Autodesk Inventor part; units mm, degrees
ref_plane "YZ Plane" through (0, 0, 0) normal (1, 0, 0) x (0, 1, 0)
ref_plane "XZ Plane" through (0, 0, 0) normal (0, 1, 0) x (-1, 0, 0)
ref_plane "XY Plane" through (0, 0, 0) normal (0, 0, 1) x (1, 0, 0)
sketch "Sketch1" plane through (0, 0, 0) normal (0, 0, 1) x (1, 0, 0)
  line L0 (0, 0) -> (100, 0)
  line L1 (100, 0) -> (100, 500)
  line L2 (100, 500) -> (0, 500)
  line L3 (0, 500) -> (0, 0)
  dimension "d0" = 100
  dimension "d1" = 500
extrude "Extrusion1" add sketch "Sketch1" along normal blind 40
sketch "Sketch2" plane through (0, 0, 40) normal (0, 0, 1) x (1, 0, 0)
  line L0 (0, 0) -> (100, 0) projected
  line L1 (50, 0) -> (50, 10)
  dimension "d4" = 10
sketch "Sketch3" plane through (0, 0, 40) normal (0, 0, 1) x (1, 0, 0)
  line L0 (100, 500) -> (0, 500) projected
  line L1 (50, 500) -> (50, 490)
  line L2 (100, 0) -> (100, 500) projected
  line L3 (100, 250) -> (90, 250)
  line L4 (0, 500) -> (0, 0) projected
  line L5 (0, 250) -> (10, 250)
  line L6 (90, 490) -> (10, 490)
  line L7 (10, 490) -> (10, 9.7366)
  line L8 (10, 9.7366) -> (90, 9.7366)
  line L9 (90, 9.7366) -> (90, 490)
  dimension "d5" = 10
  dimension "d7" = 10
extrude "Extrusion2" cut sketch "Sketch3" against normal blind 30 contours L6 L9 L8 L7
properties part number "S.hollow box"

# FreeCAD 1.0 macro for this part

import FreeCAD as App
import Part
import Sketcher
Q = App.Units.Quantity

doc = App.newDocument("Part")
body = doc.addObject("PartDesign::Body", "Body")

# Sketch on XY plane
sketch1 = body.newObject("Sketcher::SketchObject", "Sketch")
sketch1.AttachmentSupport = (doc.getObject("XY_Plane"), [""])
sketch1.MapMode = "FlatFace"
sketch1.addGeometry([
    Part.LineSegment(App.Vector(0, 500, 0), App.Vector(0, 0, 0)),
    Part.LineSegment(App.Vector(0, 0, 0), App.Vector(100, 0, 0)),
    Part.LineSegment(App.Vector(100, 0, 0), App.Vector(100, 500, 0)),
    Part.LineSegment(App.Vector(100, 500, 0), App.Vector(0, 500, 0)),
], False)
sketch1.addConstraint([
    Sketcher.Constraint("Coincident", 0, 2, 1, 1),
    Sketcher.Constraint("Coincident", 1, 2, 2, 1),
    Sketcher.Constraint("Coincident", 2, 2, 3, 1),
    Sketcher.Constraint("Coincident", 3, 2, 0, 1),
    Sketcher.Constraint("Vertical", 0),
    Sketcher.Constraint("Horizontal", 1),
    Sketcher.Constraint("Vertical", 2),
    Sketcher.Constraint("Horizontal", 3),
    Sketcher.Constraint("Coincident", 0, 2, -1, 1),
    Sketcher.Constraint("DistanceX", 1, 1, 1, 2, Q("3.937 in")),
    Sketcher.Constraint("DistanceY", 0, 2, 0, 1, Q("500 mm")),
])
pad1 = body.newObject("PartDesign::Pad", "Pad")
pad1.Profile = sketch1
pad1.Length = Q("1.5748031 in")

# Sketch on XY plane
sketch2 = body.newObject("Sketcher::SketchObject", "Sketch001")
sketch2.AttachmentSupport = (doc.getObject("XY_Plane"), [""])
sketch2.MapMode = "FlatFace"
sketch2.AttachmentOffset = App.Placement(App.Vector(0, 0, 1.5748031 * 25.4), App.Rotation())
sketch2.addGeometry([
    Part.LineSegment(App.Vector(90, 490, 0), App.Vector(10, 490, 0)),
    Part.LineSegment(App.Vector(10, 490, 0), App.Vector(10, 10, 0)),
    Part.LineSegment(App.Vector(10, 10, 0), App.Vector(90, 10, 0)),
    Part.LineSegment(App.Vector(90, 10, 0), App.Vector(90, 490, 0)),
], False)
sketch2.addConstraint([
    Sketcher.Constraint("Coincident", 0, 2, 1, 1),
    Sketcher.Constraint("Coincident", 1, 2, 2, 1),
    Sketcher.Constraint("Coincident", 2, 2, 3, 1),
    Sketcher.Constraint("Coincident", 3, 2, 0, 1),
    Sketcher.Constraint("Horizontal", 0),
    Sketcher.Constraint("Vertical", 1),
    Sketcher.Constraint("Horizontal", 2),
    Sketcher.Constraint("Vertical", 3),
    Sketcher.Constraint("DistanceX", -1, 1, 0, 2, Q("0.3937 in")),
    Sketcher.Constraint("DistanceY", 1, 2, 1, 1, Q("18.908 in")),
    Sketcher.Constraint("DistanceX", 0, 2, 0, 1, Q("3.1496 in")),
    Sketcher.Constraint("DistanceY", -1, 1, 0, 2, Q("490 mm")),
])
pocket1 = body.newObject("PartDesign::Pocket", "Pocket")
pocket1.Profile = sketch2
pocket1.Length = Q("1.1811024 in")

doc.recompute()
